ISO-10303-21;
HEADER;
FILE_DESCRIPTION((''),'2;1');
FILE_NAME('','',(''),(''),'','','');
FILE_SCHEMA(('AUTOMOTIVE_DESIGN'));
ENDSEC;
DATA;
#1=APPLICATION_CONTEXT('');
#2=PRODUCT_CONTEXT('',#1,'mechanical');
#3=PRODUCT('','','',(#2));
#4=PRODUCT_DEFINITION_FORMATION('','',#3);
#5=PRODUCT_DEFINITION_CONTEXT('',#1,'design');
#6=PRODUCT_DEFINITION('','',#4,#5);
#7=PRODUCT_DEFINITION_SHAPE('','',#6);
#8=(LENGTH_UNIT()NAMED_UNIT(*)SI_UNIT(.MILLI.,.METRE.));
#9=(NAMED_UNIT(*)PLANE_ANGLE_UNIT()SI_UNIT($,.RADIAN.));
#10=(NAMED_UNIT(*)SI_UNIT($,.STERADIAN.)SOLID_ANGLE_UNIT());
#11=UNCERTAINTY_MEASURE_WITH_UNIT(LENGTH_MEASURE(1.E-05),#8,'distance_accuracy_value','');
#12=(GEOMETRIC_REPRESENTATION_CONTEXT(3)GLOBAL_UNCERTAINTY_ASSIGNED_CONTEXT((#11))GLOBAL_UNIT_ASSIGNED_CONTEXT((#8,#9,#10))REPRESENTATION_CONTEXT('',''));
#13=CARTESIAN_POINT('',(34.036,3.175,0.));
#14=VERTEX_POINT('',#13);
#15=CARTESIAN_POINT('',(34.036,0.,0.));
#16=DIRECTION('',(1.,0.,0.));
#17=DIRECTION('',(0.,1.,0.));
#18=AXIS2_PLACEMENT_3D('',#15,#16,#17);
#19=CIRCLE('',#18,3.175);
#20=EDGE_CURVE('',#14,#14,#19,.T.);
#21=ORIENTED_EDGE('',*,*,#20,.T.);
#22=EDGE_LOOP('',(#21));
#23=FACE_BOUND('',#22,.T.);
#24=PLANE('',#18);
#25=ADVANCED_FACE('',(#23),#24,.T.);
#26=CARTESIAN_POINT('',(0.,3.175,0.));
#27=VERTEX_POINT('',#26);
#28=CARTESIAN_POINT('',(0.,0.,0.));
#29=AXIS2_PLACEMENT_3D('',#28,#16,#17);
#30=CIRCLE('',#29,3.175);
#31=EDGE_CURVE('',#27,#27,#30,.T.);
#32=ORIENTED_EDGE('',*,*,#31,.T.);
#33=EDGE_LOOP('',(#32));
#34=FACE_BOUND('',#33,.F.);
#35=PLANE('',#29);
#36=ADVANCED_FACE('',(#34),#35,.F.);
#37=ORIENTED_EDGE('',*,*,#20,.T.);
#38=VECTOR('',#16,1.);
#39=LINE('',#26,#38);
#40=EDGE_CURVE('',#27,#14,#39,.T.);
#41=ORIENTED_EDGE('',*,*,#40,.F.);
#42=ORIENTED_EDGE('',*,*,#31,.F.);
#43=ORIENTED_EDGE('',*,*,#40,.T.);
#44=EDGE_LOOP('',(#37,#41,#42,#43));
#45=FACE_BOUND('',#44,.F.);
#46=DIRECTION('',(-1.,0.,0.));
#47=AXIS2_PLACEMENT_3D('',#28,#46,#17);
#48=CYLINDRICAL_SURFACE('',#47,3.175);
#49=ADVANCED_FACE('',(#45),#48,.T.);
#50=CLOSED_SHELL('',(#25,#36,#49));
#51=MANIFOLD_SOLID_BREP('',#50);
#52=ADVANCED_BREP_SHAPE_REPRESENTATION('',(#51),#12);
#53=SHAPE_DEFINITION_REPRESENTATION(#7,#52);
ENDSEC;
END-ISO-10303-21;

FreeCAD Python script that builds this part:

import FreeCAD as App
import Part
import Sketcher
Q = App.Units.Quantity

doc = App.newDocument("Part")
body = doc.addObject("PartDesign::Body", "Body")

# Sketch on YZ plane
sketch1 = body.newObject("Sketcher::SketchObject", "Sketch")
sketch1.AttachmentSupport = (doc.getObject("YZ_Plane"), [""])
sketch1.MapMode = "FlatFace"
sketch1.addGeometry(Part.Circle(App.Vector(0, 0, 0), App.Vector(0, 0, 1), 3.2), False)
sketch1.addConstraint([
    Sketcher.Constraint("Coincident", 0, 3, -1, 1),
    Sketcher.Constraint("Diameter", 0, Q("0.25 in")),
])
pad1 = body.newObject("PartDesign::Pad", "Pad")
pad1.Profile = sketch1
pad1.Length = Q("1.34 in")

doc.recompute()
